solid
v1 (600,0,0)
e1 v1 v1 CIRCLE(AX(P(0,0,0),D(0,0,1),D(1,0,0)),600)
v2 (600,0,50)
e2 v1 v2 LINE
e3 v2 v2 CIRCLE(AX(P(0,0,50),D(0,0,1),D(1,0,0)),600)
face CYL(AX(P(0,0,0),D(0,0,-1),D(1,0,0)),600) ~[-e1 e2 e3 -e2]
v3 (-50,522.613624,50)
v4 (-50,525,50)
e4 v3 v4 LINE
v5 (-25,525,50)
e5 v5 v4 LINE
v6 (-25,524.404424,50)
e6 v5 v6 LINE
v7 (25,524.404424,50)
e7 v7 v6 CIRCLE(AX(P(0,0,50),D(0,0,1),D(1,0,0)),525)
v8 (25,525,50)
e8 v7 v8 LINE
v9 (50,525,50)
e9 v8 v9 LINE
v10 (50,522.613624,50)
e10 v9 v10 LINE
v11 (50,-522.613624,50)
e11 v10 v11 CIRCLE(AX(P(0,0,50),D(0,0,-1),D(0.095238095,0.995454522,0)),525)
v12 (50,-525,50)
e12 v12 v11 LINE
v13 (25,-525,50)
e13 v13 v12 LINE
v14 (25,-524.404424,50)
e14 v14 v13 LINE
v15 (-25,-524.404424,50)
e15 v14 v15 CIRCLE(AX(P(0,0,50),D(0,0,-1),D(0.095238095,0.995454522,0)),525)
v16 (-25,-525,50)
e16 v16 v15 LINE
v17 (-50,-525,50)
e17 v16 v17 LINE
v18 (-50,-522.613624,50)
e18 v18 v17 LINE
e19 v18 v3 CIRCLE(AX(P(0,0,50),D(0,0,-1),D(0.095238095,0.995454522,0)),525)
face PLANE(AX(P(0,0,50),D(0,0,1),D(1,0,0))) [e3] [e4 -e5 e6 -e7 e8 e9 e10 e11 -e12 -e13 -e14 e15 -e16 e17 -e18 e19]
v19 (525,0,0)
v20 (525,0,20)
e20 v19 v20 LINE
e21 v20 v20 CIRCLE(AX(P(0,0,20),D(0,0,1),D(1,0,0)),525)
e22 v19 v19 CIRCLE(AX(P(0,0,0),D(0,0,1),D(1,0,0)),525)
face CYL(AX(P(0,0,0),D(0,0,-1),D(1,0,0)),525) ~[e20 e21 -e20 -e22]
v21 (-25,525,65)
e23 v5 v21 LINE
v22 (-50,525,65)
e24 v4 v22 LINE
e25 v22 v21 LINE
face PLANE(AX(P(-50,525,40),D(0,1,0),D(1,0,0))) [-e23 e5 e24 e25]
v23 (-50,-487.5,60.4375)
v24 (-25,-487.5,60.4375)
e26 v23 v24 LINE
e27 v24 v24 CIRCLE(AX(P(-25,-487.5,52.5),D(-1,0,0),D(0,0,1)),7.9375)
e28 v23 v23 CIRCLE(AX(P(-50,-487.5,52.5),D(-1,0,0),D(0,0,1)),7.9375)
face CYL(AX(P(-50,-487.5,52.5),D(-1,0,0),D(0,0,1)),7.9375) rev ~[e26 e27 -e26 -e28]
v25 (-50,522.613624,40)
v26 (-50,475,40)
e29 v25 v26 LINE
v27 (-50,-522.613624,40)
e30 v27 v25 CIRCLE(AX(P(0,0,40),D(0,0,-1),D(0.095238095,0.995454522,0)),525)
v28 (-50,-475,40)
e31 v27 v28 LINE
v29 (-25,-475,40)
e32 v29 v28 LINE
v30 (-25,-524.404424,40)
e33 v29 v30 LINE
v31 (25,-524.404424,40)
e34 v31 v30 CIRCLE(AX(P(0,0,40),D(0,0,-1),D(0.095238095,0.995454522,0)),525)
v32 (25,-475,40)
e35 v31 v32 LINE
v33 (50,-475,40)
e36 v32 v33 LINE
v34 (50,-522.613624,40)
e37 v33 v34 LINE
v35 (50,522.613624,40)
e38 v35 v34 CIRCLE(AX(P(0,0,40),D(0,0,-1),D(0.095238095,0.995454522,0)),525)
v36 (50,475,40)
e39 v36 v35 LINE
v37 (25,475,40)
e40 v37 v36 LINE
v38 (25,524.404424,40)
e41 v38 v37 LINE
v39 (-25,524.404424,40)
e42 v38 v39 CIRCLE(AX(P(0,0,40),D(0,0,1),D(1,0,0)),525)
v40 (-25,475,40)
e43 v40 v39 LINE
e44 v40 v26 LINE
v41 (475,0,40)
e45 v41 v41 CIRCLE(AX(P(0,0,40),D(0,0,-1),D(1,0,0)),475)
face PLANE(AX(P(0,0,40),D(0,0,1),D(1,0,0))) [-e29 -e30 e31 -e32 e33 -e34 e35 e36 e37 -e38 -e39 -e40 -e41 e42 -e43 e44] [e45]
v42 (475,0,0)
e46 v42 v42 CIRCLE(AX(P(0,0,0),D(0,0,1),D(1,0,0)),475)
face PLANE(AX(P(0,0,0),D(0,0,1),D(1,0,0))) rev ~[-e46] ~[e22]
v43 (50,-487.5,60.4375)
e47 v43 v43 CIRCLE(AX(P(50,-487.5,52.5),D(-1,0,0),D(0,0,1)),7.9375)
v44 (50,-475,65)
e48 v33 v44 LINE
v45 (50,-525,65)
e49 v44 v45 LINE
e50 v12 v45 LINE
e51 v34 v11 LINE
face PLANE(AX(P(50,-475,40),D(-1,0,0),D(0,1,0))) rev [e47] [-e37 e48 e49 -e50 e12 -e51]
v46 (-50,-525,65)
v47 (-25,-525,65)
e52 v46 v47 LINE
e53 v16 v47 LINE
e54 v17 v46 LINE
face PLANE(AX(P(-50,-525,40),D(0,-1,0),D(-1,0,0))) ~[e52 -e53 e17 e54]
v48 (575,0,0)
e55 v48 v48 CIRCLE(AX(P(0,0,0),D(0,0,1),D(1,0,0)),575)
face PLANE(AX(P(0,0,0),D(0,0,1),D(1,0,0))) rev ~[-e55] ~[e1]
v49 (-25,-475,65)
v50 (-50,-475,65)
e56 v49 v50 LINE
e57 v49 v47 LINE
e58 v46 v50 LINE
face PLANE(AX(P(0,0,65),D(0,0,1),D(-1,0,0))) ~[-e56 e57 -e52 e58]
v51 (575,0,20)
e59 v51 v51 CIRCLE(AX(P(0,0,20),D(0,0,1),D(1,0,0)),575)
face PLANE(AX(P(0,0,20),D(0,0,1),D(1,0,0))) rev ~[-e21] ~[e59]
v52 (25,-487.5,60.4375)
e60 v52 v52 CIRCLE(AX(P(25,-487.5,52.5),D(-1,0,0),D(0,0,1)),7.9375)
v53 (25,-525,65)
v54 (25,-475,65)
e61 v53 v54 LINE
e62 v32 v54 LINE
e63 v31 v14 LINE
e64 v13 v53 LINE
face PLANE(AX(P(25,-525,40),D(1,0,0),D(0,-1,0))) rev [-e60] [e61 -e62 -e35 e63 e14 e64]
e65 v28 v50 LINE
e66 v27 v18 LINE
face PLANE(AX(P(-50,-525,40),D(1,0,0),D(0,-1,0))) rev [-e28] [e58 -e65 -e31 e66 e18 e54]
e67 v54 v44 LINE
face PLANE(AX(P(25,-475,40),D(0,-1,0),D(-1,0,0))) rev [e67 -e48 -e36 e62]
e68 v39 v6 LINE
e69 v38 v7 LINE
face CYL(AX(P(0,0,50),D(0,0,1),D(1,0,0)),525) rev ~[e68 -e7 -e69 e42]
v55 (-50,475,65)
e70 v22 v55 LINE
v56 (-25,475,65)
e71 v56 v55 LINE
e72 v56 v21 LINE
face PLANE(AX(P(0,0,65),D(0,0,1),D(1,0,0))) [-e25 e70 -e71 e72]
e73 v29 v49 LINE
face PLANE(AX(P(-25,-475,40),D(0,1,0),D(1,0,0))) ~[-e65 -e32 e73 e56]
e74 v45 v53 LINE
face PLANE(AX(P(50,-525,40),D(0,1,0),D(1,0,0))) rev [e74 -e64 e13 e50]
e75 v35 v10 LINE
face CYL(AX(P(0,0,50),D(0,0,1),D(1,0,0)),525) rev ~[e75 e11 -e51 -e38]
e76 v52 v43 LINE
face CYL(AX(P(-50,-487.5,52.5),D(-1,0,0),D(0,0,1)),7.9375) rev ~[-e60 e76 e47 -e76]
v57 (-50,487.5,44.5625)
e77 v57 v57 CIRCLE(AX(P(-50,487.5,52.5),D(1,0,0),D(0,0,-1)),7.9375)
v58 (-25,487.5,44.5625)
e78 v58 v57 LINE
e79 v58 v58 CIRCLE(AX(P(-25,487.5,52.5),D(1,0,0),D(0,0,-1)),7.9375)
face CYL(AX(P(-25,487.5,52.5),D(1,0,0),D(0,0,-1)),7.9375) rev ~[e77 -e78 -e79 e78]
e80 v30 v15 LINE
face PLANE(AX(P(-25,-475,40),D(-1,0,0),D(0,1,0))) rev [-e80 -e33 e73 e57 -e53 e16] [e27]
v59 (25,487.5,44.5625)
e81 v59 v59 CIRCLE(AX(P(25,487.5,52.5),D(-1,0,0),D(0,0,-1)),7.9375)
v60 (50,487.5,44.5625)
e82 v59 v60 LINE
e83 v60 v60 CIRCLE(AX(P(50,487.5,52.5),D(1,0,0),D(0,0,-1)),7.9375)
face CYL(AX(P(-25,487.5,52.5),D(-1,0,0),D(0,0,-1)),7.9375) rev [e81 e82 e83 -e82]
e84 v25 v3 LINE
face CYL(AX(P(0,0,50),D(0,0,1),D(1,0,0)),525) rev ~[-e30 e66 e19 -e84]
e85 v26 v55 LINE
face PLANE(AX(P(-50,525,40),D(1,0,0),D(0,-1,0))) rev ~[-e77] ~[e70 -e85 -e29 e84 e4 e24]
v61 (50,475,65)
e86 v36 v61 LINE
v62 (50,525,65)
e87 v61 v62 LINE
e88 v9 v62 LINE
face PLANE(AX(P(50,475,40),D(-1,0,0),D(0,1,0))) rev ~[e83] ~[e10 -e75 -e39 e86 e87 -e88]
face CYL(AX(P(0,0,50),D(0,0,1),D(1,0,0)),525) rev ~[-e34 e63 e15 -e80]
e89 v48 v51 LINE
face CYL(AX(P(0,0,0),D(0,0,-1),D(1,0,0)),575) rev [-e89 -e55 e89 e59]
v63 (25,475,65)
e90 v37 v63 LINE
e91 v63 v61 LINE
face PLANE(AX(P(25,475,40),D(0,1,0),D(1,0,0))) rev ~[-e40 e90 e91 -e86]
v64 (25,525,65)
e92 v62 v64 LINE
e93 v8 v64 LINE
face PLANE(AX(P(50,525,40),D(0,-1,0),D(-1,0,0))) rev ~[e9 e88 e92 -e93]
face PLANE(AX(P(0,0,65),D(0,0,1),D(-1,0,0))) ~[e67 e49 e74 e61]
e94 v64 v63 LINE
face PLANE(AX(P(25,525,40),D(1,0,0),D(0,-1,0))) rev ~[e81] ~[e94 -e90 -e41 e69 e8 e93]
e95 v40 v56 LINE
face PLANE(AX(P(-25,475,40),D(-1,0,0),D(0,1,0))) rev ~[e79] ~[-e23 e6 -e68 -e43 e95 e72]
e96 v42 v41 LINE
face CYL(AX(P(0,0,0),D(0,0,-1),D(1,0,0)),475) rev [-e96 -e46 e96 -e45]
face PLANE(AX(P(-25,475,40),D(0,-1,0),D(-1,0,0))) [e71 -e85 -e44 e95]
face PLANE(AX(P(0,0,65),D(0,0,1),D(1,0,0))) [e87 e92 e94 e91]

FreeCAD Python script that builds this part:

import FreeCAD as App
import Part
import Sketcher


def add_polygon(sketch, points):
    """Adds a closed chain of lines whose ends are joined by coincident constraints."""
    first, n = sketch.GeometryCount, len(points)
    for a, b in zip(points, points[1:] + points[:1]):
        sketch.addGeometry(Part.LineSegment(App.Vector(*a, 0), App.Vector(*b, 0)), False)
    for i in range(n):
        sketch.addConstraint(Sketcher.Constraint("Coincident", first + i, 2, first + (i + 1) % n, 1))

doc = App.newDocument("Part")
params = doc.addObject("Spreadsheet::Sheet", "Params")
for row, (alias, value) in enumerate([
    ("sketch1_diameter", "1200 mm"),
    ("pad1_length", "50 mm"),
    ("sketch2_diameter", "1150 mm"),
    ("sketch2_diameter2", "1050 mm"),
    ("pocket1_length", "20 mm"),
    ("sketch3_diameter", "950 mm"),
    ("pocket2_length", "315.5 mm"),
    ("sketch4_diameter", "1050 mm"),
    ("pocket3_length", "10 mm"),
    ("sketch5_width", "25 mm"),
    ("sketch5_height", "50 mm"),
    ("pad2_length", "25 mm"),
    ("pocket4_length", "75 mm"),
    ("pocket4_length2", "25 mm"),
    ("pocket5_length", "100 mm"),
], start=1):
    params.set(f"A{row}", alias)
    params.set(f"B{row}", "=" + value)
    params.setAlias(f"B{row}", alias)

body = doc.addObject("PartDesign::Body", "Body")

# Sketch on XY plane
sketch1 = body.newObject("Sketcher::SketchObject", "Sketch")
sketch1.AttachmentSupport = (doc.getObject("XY_Plane"), [""])
sketch1.MapMode = "FlatFace"
sketch1.addGeometry(Part.Circle(App.Vector(0, 0, 0), App.Vector(0, 0, 1), 600), False)
sketch1.addConstraint(Sketcher.Constraint("Coincident", 0, 3, -1, 1))
sketch1.addConstraint(Sketcher.Constraint("Diameter", 0, 1200.0))
sketch1.setExpression("Constraints[1]", "Params.sketch1_diameter")
pad1 = body.newObject("PartDesign::Pad", "Pad")
pad1.Profile = sketch1
pad1.setExpression("Length", "Params.pad1_length")

# Sketch on XY plane
sketch2 = body.newObject("Sketcher::SketchObject", "Sketch001")
sketch2.AttachmentSupport = (doc.getObject("XY_Plane"), [""])
sketch2.MapMode = "FlatFace"
sketch2.addGeometry(Part.Circle(App.Vector(0, 0, 0), App.Vector(0, 0, 1), 575), False)
sketch2.addGeometry(Part.Circle(App.Vector(0, 0, 0), App.Vector(0, 0, 1), 525), False)
sketch2.addConstraint(Sketcher.Constraint("Coincident", 0, 3, -1, 1))
sketch2.addConstraint(Sketcher.Constraint("Coincident", 1, 3, -1, 1))
sketch2.addConstraint(Sketcher.Constraint("Diameter", 0, 1150.0))
sketch2.addConstraint(Sketcher.Constraint("Diameter", 1, 1050.0))
sketch2.setExpression("Constraints[2]", "Params.sketch2_diameter")
sketch2.setExpression("Constraints[3]", "Params.sketch2_diameter2")
pocket1 = body.newObject("PartDesign::Pocket", "Pocket")
pocket1.Profile = sketch2
pocket1.setExpression("Length", "Params.pocket1_length")
pocket1.Reversed = True

# Sketch on XY plane
sketch3 = body.newObject("Sketcher::SketchObject", "Sketch002")
sketch3.AttachmentSupport = (doc.getObject("XY_Plane"), [""])
sketch3.MapMode = "FlatFace"
sketch3.addGeometry(Part.Circle(App.Vector(0, 0, 0), App.Vector(0, 0, 1), 475), False)
sketch3.addConstraint(Sketcher.Constraint("Coincident", 0, 3, -1, 1))
sketch3.addConstraint(Sketcher.Constraint("Diameter", 0, 950.0))
sketch3.setExpression("Constraints[1]", "Params.sketch3_diameter")
pocket2 = body.newObject("PartDesign::Pocket", "Pocket001")
pocket2.Profile = sketch3
pocket2.setExpression("Length", "Params.pocket2_length")
pocket2.Reversed = True

# Sketch on XY plane
sketch4 = body.newObject("Sketcher::SketchObject", "Sketch003")
sketch4.AttachmentSupport = (doc.getObject("XY_Plane"), [""])
sketch4.MapMode = "FlatFace"
sketch4.AttachmentOffset = App.Placement(App.Vector(0, 0, 50), App.Rotation())
sketch4.addGeometry(Part.Circle(App.Vector(0, 0, 0), App.Vector(0, 0, 1), 525), False)
sketch4.addConstraint(Sketcher.Constraint("Coincident", 0, 3, -1, 1))
sketch4.addConstraint(Sketcher.Constraint("Diameter", 0, 1050.0))
sketch4.setExpression("Constraints[1]", "Params.sketch4_diameter")
pocket3 = body.newObject("PartDesign::Pocket", "Pocket002")
pocket3.Profile = sketch4
pocket3.setExpression("Length", "Params.pocket3_length")

# Sketch on XY plane
sketch5 = body.newObject("Sketcher::SketchObject", "Sketch004")
sketch5.AttachmentSupport = (doc.getObject("XY_Plane"), [""])
sketch5.MapMode = "FlatFace"
sketch5.AttachmentOffset = App.Placement(App.Vector(0, 0, 40), App.Rotation())
add_polygon(sketch5, [(-50, 475), (-25, 475), (-25, 525), (-50, 525)])  # lines 0-3
add_polygon(sketch5, [(25, 525), (25, 475), (50, 475), (50, 525)])  # lines 4-7
sketch5.addConstraint(Sketcher.Constraint("Horizontal", 0))
sketch5.addConstraint(Sketcher.Constraint("Vertical", 1))
sketch5.addConstraint(Sketcher.Constraint("Horizontal", 2))
sketch5.addConstraint(Sketcher.Constraint("Vertical", 3))
sketch5.addConstraint(Sketcher.Constraint("Vertical", 4))
sketch5.addConstraint(Sketcher.Constraint("Horizontal", 5))
sketch5.addConstraint(Sketcher.Constraint("Vertical", 6))
sketch5.addConstraint(Sketcher.Constraint("Horizontal", 7))
sketch5.addConstraint(Sketcher.Constraint("Symmetric", 0, 2, 4, 2, -2))
sketch5.addConstraint(Sketcher.Constraint("Symmetric", 2, 2, 6, 2, -2))
sketch5.addConstraint(Sketcher.Constraint("DistanceX", 0, 1, 0, 2, 25.0))
sketch5.addConstraint(Sketcher.Constraint("DistanceY", 1, 1, 1, 2, 50.0))
sketch5.addConstraint(Sketcher.Constraint("DistanceX", 0, 2, -1, 1, 25.0))
sketch5.addConstraint(Sketcher.Constraint("DistanceY", -1, 1, 0, 2, 475.0))
sketch5.setExpression("Constraints[18]", "Params.sketch5_width")
sketch5.setExpression("Constraints[19]", "Params.sketch5_height")
pad2 = body.newObject("PartDesign::Pad", "Pad001")
pad2.Profile = sketch5
pad2.setExpression("Length", "Params.pad2_length")

# Sketch on YZ plane
sketch6 = body.newObject("Sketcher::SketchObject", "Sketch005")
sketch6.AttachmentSupport = (doc.getObject("YZ_Plane"), [""])
sketch6.MapMode = "FlatFace"
sketch6.AttachmentOffset = App.Placement(App.Vector(0, 0, -25), App.Rotation())
sketch6.addGeometry(Part.Circle(App.Vector(488, 52, 0), App.Vector(0, 0, 1), 8), False)
sketch6.addConstraint(Sketcher.Constraint("Diameter", 0, 15.875))
sketch6.addConstraint(Sketcher.Constraint("DistanceX", -1, 1, 0, 3, 487.5))
sketch6.addConstraint(Sketcher.Constraint("DistanceY", -1, 1, 0, 3, 52.5))
pocket4 = body.newObject("PartDesign::Pocket", "Pocket003")
pocket4.Profile = sketch6
pocket4.Type = "TwoLengths"
pocket4.setExpression("Length", "Params.pocket4_length")
pocket4.setExpression("Length2", "Params.pocket4_length2")
pocket4.Reversed = True
doc.recompute()

mirrored = body.newObject("PartDesign::Mirrored", "Mirrored")
mirrored.Originals = [pad2]
mirrored.MirrorPlane = (doc.getObject("XZ_Plane"), [""])
body.Tip = mirrored

# Sketch on YZ plane
sketch7 = body.newObject("Sketcher::SketchObject", "Sketch006")
sketch7.AttachmentSupport = (doc.getObject("YZ_Plane"), [""])
sketch7.MapMode = "FlatFace"
sketch7.AttachmentOffset = App.Placement(App.Vector(0, 0, -50), App.Rotation())
sketch7.addGeometry(Part.Circle(App.Vector(-488, 52, 0), App.Vector(0, 0, 1), 8), False)
sketch7.addConstraint(Sketcher.Constraint("Diameter", 0, 15.875))
sketch7.addConstraint(Sketcher.Constraint("DistanceX", 0, 3, -1, 1, 487.5))
sketch7.addConstraint(Sketcher.Constraint("DistanceY", -1, 1, 0, 3, 52.5))
pocket5 = body.newObject("PartDesign::Pocket", "Pocket004")
pocket5.Profile = sketch7
pocket5.setExpression("Length", "Params.pocket5_length")
pocket5.Reversed = True

doc.recompute()
